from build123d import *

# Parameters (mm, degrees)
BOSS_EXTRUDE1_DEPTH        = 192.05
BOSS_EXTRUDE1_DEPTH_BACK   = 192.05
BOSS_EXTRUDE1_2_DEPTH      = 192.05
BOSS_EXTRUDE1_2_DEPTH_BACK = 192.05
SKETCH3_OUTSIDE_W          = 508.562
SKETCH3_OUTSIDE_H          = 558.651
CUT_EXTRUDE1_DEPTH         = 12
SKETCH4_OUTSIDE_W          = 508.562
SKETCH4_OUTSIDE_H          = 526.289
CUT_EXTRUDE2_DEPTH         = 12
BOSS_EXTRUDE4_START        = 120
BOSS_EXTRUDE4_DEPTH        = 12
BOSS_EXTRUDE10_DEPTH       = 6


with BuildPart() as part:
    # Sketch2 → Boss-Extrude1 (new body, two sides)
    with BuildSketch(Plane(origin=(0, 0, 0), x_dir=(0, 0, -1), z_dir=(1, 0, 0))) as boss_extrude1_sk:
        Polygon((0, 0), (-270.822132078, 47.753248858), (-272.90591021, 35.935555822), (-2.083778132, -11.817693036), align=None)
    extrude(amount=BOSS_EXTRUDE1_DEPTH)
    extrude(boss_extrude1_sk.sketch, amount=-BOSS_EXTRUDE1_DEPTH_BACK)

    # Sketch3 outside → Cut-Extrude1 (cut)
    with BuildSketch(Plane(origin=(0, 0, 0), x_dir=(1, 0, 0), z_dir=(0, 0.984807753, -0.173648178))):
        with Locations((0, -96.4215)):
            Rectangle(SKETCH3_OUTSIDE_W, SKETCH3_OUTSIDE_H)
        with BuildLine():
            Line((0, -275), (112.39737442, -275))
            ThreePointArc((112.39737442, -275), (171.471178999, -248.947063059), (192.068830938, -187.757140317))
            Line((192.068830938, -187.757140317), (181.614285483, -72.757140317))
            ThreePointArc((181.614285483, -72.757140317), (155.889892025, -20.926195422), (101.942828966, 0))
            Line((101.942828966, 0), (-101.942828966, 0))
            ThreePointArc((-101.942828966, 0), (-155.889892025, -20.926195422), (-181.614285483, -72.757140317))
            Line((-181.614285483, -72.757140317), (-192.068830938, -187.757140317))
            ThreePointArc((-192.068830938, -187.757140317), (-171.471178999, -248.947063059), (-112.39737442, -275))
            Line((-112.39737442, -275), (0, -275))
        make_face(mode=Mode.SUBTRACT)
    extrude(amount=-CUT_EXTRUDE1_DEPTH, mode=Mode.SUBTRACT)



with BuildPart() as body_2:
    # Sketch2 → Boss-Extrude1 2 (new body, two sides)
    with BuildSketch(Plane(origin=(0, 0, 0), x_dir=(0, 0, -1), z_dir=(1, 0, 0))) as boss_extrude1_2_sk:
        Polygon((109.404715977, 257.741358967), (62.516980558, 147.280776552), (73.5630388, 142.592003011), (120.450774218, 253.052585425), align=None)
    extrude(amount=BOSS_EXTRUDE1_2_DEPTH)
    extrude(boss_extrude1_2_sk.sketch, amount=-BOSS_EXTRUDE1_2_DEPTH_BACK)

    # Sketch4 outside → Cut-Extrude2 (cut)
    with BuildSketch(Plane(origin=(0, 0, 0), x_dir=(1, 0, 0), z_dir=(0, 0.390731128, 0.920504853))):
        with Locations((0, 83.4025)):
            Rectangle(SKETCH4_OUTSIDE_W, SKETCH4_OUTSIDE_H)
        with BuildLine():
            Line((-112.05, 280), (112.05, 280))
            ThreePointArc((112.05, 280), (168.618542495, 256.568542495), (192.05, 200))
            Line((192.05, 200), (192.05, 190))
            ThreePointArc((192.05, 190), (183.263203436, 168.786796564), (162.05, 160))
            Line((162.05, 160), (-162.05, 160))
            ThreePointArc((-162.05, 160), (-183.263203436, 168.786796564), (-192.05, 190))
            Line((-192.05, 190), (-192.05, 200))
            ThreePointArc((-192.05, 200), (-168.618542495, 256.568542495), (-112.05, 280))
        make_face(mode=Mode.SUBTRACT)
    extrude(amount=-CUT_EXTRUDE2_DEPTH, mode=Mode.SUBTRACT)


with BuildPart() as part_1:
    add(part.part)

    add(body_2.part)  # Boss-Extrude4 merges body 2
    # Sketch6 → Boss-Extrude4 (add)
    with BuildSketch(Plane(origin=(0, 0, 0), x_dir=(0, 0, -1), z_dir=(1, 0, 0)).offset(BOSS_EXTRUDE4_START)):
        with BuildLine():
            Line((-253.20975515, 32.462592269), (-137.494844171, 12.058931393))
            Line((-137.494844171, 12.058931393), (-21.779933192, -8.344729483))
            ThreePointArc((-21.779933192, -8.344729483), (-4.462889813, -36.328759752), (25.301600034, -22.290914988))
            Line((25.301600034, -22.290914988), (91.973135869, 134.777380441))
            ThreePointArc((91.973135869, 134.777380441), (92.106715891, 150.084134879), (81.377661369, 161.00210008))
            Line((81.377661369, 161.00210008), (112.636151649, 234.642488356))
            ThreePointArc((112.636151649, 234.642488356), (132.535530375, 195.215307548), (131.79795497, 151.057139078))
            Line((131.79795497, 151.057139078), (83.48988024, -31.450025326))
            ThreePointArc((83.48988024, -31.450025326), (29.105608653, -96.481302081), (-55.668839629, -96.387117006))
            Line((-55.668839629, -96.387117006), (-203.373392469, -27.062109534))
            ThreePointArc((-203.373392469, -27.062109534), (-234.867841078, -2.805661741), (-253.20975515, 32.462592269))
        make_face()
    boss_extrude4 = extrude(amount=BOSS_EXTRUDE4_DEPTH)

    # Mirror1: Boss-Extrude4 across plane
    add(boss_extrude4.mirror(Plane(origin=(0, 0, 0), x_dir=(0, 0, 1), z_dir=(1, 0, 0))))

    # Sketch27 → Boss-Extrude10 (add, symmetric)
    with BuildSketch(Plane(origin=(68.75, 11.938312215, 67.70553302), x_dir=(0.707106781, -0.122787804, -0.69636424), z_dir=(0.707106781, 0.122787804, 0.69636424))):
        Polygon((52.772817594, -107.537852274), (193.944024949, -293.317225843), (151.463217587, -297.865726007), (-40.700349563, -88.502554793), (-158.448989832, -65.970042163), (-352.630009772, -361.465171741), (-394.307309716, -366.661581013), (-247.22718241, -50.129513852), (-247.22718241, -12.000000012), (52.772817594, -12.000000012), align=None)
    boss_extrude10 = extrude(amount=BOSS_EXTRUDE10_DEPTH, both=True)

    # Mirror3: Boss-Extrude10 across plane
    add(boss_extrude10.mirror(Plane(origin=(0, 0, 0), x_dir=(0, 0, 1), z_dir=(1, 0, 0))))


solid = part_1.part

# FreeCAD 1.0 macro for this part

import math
import FreeCAD as App
import Part
import Sketcher

V = App.Vector
Q = App.Units.Quantity

doc = App.newDocument("Part")
body = doc.addObject("PartDesign::Body", "Body")

sketch1 = body.newObject("Sketcher::SketchObject", "Sketch")
sketch1.AttachmentSupport = (doc.getObject("YZ_Plane"), [""])
sketch1.MapMode = "FlatFace"
sketch1.addGeometry([
    Part.LineSegment(V(0, 0, 0), V(48, 271, 0)),
    Part.LineSegment(V(48, 271, 0), V(36, 273, 0)),
    Part.LineSegment(V(36, 273, 0), V(-12, 2, 0)),
    Part.LineSegment(V(-12, 2, 0), V(0, 0, 0)),
], False)
sketch1.addConstraint([
    Sketcher.Constraint("Coincident", 0, 2, 1, 1),
    Sketcher.Constraint("Coincident", 1, 2, 2, 1),
    Sketcher.Constraint("Coincident", 2, 2, 3, 1),
    Sketcher.Constraint("Coincident", 3, 2, 0, 1),
    Sketcher.Constraint("Coincident", 3, 2, -1, 1),
    Sketcher.Constraint("Perpendicular", 0, 1),
    Sketcher.Constraint("Perpendicular", 1, 2),
    Sketcher.Constraint("Perpendicular", 2, 3),
    Sketcher.Constraint("Angle", 0, Q("80 deg")),
    Sketcher.Constraint("Distance", 0, Q("275 mm")),
    Sketcher.Constraint("Distance", 1, Q("12 mm")),
])
pad1 = body.newObject("PartDesign::Pad", "Pad")
pad1.Profile = sketch1
pad1.Type = "TwoLengths"
pad1.Length = 192.05
pad1.Length2 = 192.05

sketch2 = body.newObject("Sketcher::SketchObject", "Sketch001")
sketch2.Placement = App.Placement(V(0, 0, 0), App.Rotation(V(1, 0, 0), V(0, -0.173648178, -0.984807753), V(0, 0.984807753, -0.173648178), "ZXY"))
sketch2.addGeometry([
    Part.LineSegment(V(-254, 183, 0), V(-254, -376, 0)),
    Part.LineSegment(V(-254, -376, 0), V(254, -376, 0)),
    Part.LineSegment(V(254, -376, 0), V(254, 183, 0)),
    Part.LineSegment(V(254, 183, 0), V(-254, 183, 0)),
    Part.ArcOfCircle(Part.Circle(V(112, -195, 0), V(0, 0, 1), 80), math.radians(-90), math.radians(5)),
    Part.LineSegment(V(112, -275, 0), V(-112, -275, 0)),
    Part.ArcOfCircle(Part.Circle(V(-112, -195, 0), V(0, 0, 1), 80), math.radians(175), math.radians(270)),
    Part.LineSegment(V(-192, -188, 0), V(-182, -73, 0)),
    Part.ArcOfCircle(Part.Circle(V(-102, -80, 0), V(0, 0, 1), 80), math.radians(90), math.radians(175)),
    Part.LineSegment(V(-102, 0, 0), V(102, 0, 0)),
    Part.ArcOfCircle(Part.Circle(V(102, -80, 0), V(0, 0, 1), 80), math.radians(5), math.radians(90)),
    Part.LineSegment(V(182, -73, 0), V(192, -188, 0)),
], False)
sketch2.addConstraint([
    Sketcher.Constraint("Coincident", 0, 2, 1, 1),
    Sketcher.Constraint("Coincident", 1, 2, 2, 1),
    Sketcher.Constraint("Coincident", 2, 2, 3, 1),
    Sketcher.Constraint("Coincident", 3, 2, 0, 1),
    Sketcher.Constraint("Tangent", 4, 1, 5, 1),
    Sketcher.Constraint("Tangent", 5, 2, 6, 2),
    Sketcher.Constraint("Tangent", 6, 1, 7, 1),
    Sketcher.Constraint("Tangent", 7, 2, 8, 2),
    Sketcher.Constraint("Tangent", 8, 1, 9, 1),
    Sketcher.Constraint("Tangent", 9, 2, 10, 2),
    Sketcher.Constraint("Tangent", 10, 1, 11, 1),
    Sketcher.Constraint("Tangent", 11, 2, 4, 2),
    Sketcher.Constraint("Vertical", 0),
    Sketcher.Constraint("Horizontal", 1),
    Sketcher.Constraint("Vertical", 2),
    Sketcher.Constraint("Horizontal", 3),
    Sketcher.Constraint("Horizontal", 5),
    Sketcher.Constraint("Horizontal", 9),
    Sketcher.Constraint("Equal", 4, 6),
    Sketcher.Constraint("Equal", 6, 8),
    Sketcher.Constraint("Equal", 8, 10),
    Sketcher.Constraint("Symmetric", 8, 1, 9, 2, -1, 1),
    Sketcher.Constraint("Horizontal", 7, 2, 10, 1),
    Sketcher.Constraint("Radius", 4, Q("80 mm")),
    Sketcher.Constraint("DistanceY", 4, 3, -1, 1, Q("195 mm")),
    Sketcher.Constraint("DistanceX", 1, 1, 1, 2, Q("508.562 mm")),
    Sketcher.Constraint("DistanceY", 0, 2, 0, 1, Q("558.651 mm")),
    Sketcher.Constraint("DistanceX", 0, 2, -1, 1, Q("254.281 mm")),
    Sketcher.Constraint("DistanceY", 0, 2, -1, 1, Q("375.747 mm")),
    Sketcher.Constraint("DistanceX", 6, 1, 8, 3, Q("90.126002 mm")),
    Sketcher.Constraint("DistanceX", 5, 2, 5, 1, Q("224.794749 mm")),
])
pocket1 = body.newObject("PartDesign::Pocket", "Pocket")
pocket1.Profile = sketch2
pocket1.Length = 12
body2 = doc.addObject("PartDesign::Body", "Body001")

sketch3 = body2.newObject("Sketcher::SketchObject", "Sketch002")
sketch3.AttachmentSupport = (doc.getObject("YZ_Plane001"), [""])
sketch3.MapMode = "FlatFace"
sketch3.addGeometry([
    Part.LineSegment(V(258, -109, 0), V(147, -63, 0)),
    Part.LineSegment(V(147, -63, 0), V(143, -74, 0)),
    Part.LineSegment(V(143, -74, 0), V(253, -120, 0)),
    Part.LineSegment(V(253, -120, 0), V(258, -109, 0)),
], False)
sketch3.addConstraint([
    Sketcher.Constraint("Coincident", 0, 2, 1, 1),
    Sketcher.Constraint("Coincident", 1, 2, 2, 1),
    Sketcher.Constraint("Coincident", 2, 2, 3, 1),
    Sketcher.Constraint("Coincident", 3, 2, 0, 1),
    Sketcher.Constraint("Perpendicular", 0, 1),
    Sketcher.Constraint("Perpendicular", 1, 2),
    Sketcher.Constraint("Perpendicular", 2, 3),
    Sketcher.Constraint("Angle", 0, Q("157 deg")),
    Sketcher.Constraint("Distance", 0, Q("120 mm")),
    Sketcher.Constraint("Distance", 1, Q("12 mm")),
    Sketcher.Constraint("DistanceY", 0, 2, -1, 1, Q("62.516981 mm")),
    Sketcher.Constraint("DistanceX", -1, 1, 3, 2, Q("257.741359 mm")),
])
pad2 = body2.newObject("PartDesign::Pad", "Pad001")
pad2.Profile = sketch3
pad2.Type = "TwoLengths"
pad2.Length = 192.05
pad2.Length2 = 192.05

sketch4 = body2.newObject("Sketcher::SketchObject", "Sketch003")
sketch4.Placement = App.Placement(V(0, 0, 0), App.Rotation(V(1, 0, 0), V(0, 0.920504854, -0.390731128), V(0, 0.390731128, 0.920504854), "ZXY"))
sketch4.addGeometry([
    Part.LineSegment(V(-254, 347, 0), V(-254, -180, 0)),
    Part.LineSegment(V(-254, -180, 0), V(254, -180, 0)),
    Part.LineSegment(V(254, -180, 0), V(254, 347, 0)),
    Part.LineSegment(V(254, 347, 0), V(-254, 347, 0)),
    Part.ArcOfCircle(Part.Circle(V(-112, 200, 0), V(0, 0, 1), 80), math.radians(90), math.radians(180)),
    Part.LineSegment(V(-112, 280, 0), V(112, 280, 0)),
    Part.ArcOfCircle(Part.Circle(V(112, 200, 0), V(0, 0, 1), 80), math.radians(0), math.radians(90)),
    Part.LineSegment(V(192, 200, 0), V(192, 190, 0)),
    Part.ArcOfCircle(Part.Circle(V(162, 190, 0), V(0, 0, 1), 30), math.radians(-90), math.radians(0)),
    Part.LineSegment(V(162, 160, 0), V(-162, 160, 0)),
    Part.ArcOfCircle(Part.Circle(V(-162, 190, 0), V(0, 0, 1), 30), math.radians(180), math.radians(270)),
    Part.LineSegment(V(-192, 190, 0), V(-192, 200, 0)),
], False)
sketch4.addConstraint([
    Sketcher.Constraint("Coincident", 0, 2, 1, 1),
    Sketcher.Constraint("Coincident", 1, 2, 2, 1),
    Sketcher.Constraint("Coincident", 2, 2, 3, 1),
    Sketcher.Constraint("Coincident", 3, 2, 0, 1),
    Sketcher.Constraint("Tangent", 4, 1, 5, 1),
    Sketcher.Constraint("Tangent", 5, 2, 6, 2),
    Sketcher.Constraint("Tangent", 6, 1, 7, 1),
    Sketcher.Constraint("Tangent", 7, 2, 8, 2),
    Sketcher.Constraint("Tangent", 8, 1, 9, 1),
    Sketcher.Constraint("Tangent", 9, 2, 10, 2),
    Sketcher.Constraint("Tangent", 10, 1, 11, 1),
    Sketcher.Constraint("Tangent", 11, 2, 4, 2),
    Sketcher.Constraint("Vertical", 0),
    Sketcher.Constraint("Horizontal", 1),
    Sketcher.Constraint("Vertical", 2),
    Sketcher.Constraint("Horizontal", 3),
    Sketcher.Constraint("Horizontal", 5),
    Sketcher.Constraint("Vertical", 7),
    Sketcher.Constraint("Horizontal", 9),
    Sketcher.Constraint("Vertical", 11),
    Sketcher.Constraint("Equal", 4, 6),
    Sketcher.Constraint("Equal", 8, 10),
    Sketcher.Constraint("Radius", 4, Q("80 mm")),
    Sketcher.Constraint("Radius", 8, Q("30 mm")),
    Sketcher.Constraint("DistanceY", 7, 2, 7, 1, Q("10 mm")),
    Sketcher.Constraint("DistanceX", 5, 1, 5, 2, Q("224.1 mm")),
    Sketcher.Constraint("DistanceY", -1, 1, 4, 3, Q("200 mm")),
    Sketcher.Constraint("DistanceX", 1, 1, 1, 2, Q("508.562 mm")),
    Sketcher.Constraint("DistanceY", 0, 2, 0, 1, Q("526.289 mm")),
    Sketcher.Constraint("DistanceX", 4, 3, -1, 1, Q("112.05 mm")),
    Sketcher.Constraint("DistanceX", 0, 2, -1, 1, Q("254.281 mm")),
    Sketcher.Constraint("DistanceY", 0, 2, -1, 1, Q("179.742 mm")),
])
pocket2 = body2.newObject("PartDesign::Pocket", "Pocket001")
pocket2.Profile = sketch4
pocket2.Length = 12
body.AllowCompound = True
doc.recompute()

boolean = body.newObject("PartDesign::Boolean", "Boolean")
boolean.Type = "Fuse"
boolean.addObjects([body2])

sketch5 = body.newObject("Sketcher::SketchObject", "Sketch004")
sketch5.AttachmentSupport = (doc.getObject("YZ_Plane"), [""])
sketch5.MapMode = "FlatFace"
sketch5.AttachmentOffset = App.Placement(V(0, 0, 120), App.Rotation())
sketch5.addGeometry([
    Part.LineSegment(V(-8, 22, 0), V(32, 253, 0)),
    Part.ArcOfCircle(Part.Circle(V(56, 164, 0), V(0, 0, 1), 92), math.radians(105), math.radians(155)),
    Part.LineSegment(V(-27, 203, 0), V(-96, 56, 0)),
    Part.ArcOfCircle(Part.Circle(V(-6, 13, 0), V(0, 0, 1), 100), math.radians(155), math.radians(255)),
    Part.LineSegment(V(-31, -83, 0), V(151, -132, 0)),
    Part.ArcOfCircle(Part.Circle(V(175, -43, 0), V(0, 0, 1), 92), math.radians(-105), math.radians(-49)),
    Part.LineSegment(V(235, -113, 0), V(161, -81, 0)),
    Part.ArcOfCircle(Part.Circle(V(143, -74, 0), V(0, 0, 1), 20), math.radians(-113), math.radians(-23)),
    Part.LineSegment(V(135, -92, 0), V(-22, -25, 0)),
    Part.ArcOfCircle(Part.Circle(V(-13, -3, 0), V(0, 0, 1), 25), math.radians(80), math.radians(247)),
], False)
sketch5.addConstraint([
    Sketcher.Constraint("Coincident", 0, 2, 1, 1),
    Sketcher.Constraint("Tangent", 1, 2, 2, 1),
    Sketcher.Constraint("Tangent", 2, 2, 3, 1),
    Sketcher.Constraint("Tangent", 3, 2, 4, 1),
    Sketcher.Constraint("Tangent", 4, 2, 5, 1),
    Sketcher.Constraint("Coincident", 5, 2, 6, 1),
    Sketcher.Constraint("Coincident", 6, 2, 7, 2),
    Sketcher.Constraint("Tangent", 7, 1, 8, 1),
    Sketcher.Constraint("Tangent", 8, 2, 9, 2),
    Sketcher.Constraint("Coincident", 9, 1, 0, 1),
    Sketcher.Constraint("Equal", 1, 5),
    Sketcher.Constraint("Parallel", 6, 8),
    Sketcher.Constraint("Radius", 3, Q("100 mm")),
    Sketcher.Constraint("Radius", 7, Q("20 mm")),
    Sketcher.Constraint("Angle", 0, Q("80 deg")),
    Sketcher.Constraint("Angle", 6, Q("157 deg")),
    Sketcher.Constraint("Distance", 0, Q("235 mm")),
    Sketcher.Constraint("Distance", 6, Q("80 mm")),
    Sketcher.Constraint("Radius", 1, Q("92.124532 mm")),
    Sketcher.Constraint("Radius", 9, Q("24.710661 mm")),
    Sketcher.Constraint("DistanceX", -1, 1, 6, 2, Q("161.0021 mm")),
    Sketcher.Constraint("DistanceY", 8, 2, -1, 1, Q("25.3016 mm")),
    Sketcher.Constraint("DistanceX", 1, 2, 0, 2, Q("59.524702 mm")),
    Sketcher.Constraint("Distance", 2, Q("163.164309 mm")),
    Sketcher.Constraint("DistanceX", -1, 1, 1, 3, Q("56.333658 mm")),
    Sketcher.Constraint("DistanceY", -1, 1, 1, 3, Q("164.231659 mm")),
    Sketcher.Constraint("DistanceX", 3, 3, -1, 1, Q("5.862079 mm")),
    Sketcher.Constraint("DistanceY", 5, 3, -1, 1, Q("42.740369 mm")),
    Sketcher.Constraint("DistanceY", 7, 3, -1, 1, Q("73.563039 mm")),
])
pad3 = body.newObject("PartDesign::Pad", "Pad002")
pad3.Profile = sketch5
pad3.Length = 12
doc.recompute()

mirrored = body.newObject("PartDesign::Mirrored", "Mirrored")
mirrored.Originals = [pad3]
mirrored.MirrorPlane = (doc.getObject("YZ_Plane"), [""])
body.Tip = mirrored

sketch6 = body.newObject("Sketcher::SketchObject", "Sketch005")
sketch6.Placement = App.Placement(V(68.75, 11.938312, 67.705533), App.Rotation(V(0.707106781, -0.122787804, -0.69636424), V(0, 0.984807752, -0.173648178), V(0.707106781, 0.122787804, 0.69636424), "ZXY"))
sketch6.addGeometry([
    Part.LineSegment(V(194, -293, 0), V(53, -108, 0)),
    Part.LineSegment(V(53, -108, 0), V(53, -12, 0)),
    Part.LineSegment(V(53, -12, 0), V(-247, -12, 0)),
    Part.LineSegment(V(-247, -12, 0), V(-247, -50, 0)),
    Part.LineSegment(V(-247, -50, 0), V(-394, -367, 0)),
    Part.LineSegment(V(-394, -367, 0), V(-353, -361, 0)),
    Part.LineSegment(V(-353, -361, 0), V(-158, -66, 0)),
    Part.LineSegment(V(-158, -66, 0), V(-41, -89, 0)),
    Part.LineSegment(V(-41, -89, 0), V(151, -298, 0)),
    Part.LineSegment(V(151, -298, 0), V(194, -293, 0)),
], False)
sketch6.addConstraint([
    Sketcher.Constraint("Coincident", 0, 2, 1, 1),
    Sketcher.Constraint("Coincident", 1, 2, 2, 1),
    Sketcher.Constraint("Coincident", 2, 2, 3, 1),
    Sketcher.Constraint("Coincident", 3, 2, 4, 1),
    Sketcher.Constraint("Coincident", 4, 2, 5, 1),
    Sketcher.Constraint("Coincident", 5, 2, 6, 1),
    Sketcher.Constraint("Coincident", 6, 2, 7, 1),
    Sketcher.Constraint("Coincident", 7, 2, 8, 1),
    Sketcher.Constraint("Coincident", 8, 2, 9, 1),
    Sketcher.Constraint("Coincident", 9, 2, 0, 1),
    Sketcher.Constraint("Vertical", 1),
    Sketcher.Constraint("Horizontal", 2),
    Sketcher.Constraint("Vertical", 3),
    Sketcher.Constraint("DistanceX", 2, 2, 2, 1, Q("300 mm")),
    Sketcher.Constraint("Distance", 5, Q("42 mm")),
    Sketcher.Constraint("DistanceY", 1, 2, -1, 1, Q("12 mm")),
    Sketcher.Constraint("DistanceX", 4, 2, 5, 2, Q("41.6773 mm")),
    Sketcher.Constraint("DistanceX", 0, 2, 8, 2, Q("98.6904 mm")),
    Sketcher.Constraint("DistanceY", 8, 2, 9, 2, Q("4.5485 mm")),
    Sketcher.Constraint("Distance", 0, Q("233.330849 mm")),
    Sketcher.Constraint("Distance", 6, Q("353.586821 mm")),
    Sketcher.Constraint("Distance", 7, Q("119.88518 mm")),
    Sketcher.Constraint("Distance", 8, Q("284.182642 mm")),
    Sketcher.Constraint("Distance", 9, Q("42.723622 mm")),
    Sketcher.Constraint("DistanceY", 1, 1, 1, 2, Q("95.537852 mm")),
    Sketcher.Constraint("DistanceY", 3, 2, 3, 1, Q("38.129514 mm")),
    Sketcher.Constraint("DistanceX", 4, 2, -1, 1, Q("394.307309 mm")),
    Sketcher.Constraint("DistanceY", 4, 2, -1, 1, Q("366.66158 mm")),
    Sketcher.Constraint("DistanceX", 6, 2, -1, 1, Q("158.44899 mm")),
    Sketcher.Constraint("DistanceX", 7, 2, -1, 1, Q("40.70035 mm")),
])
pad4 = body.newObject("PartDesign::Pad", "Pad003")
pad4.Profile = sketch6
pad4.Length = 12
pad4.Midplane = True
doc.recompute()

mirrored2 = body.newObject("PartDesign::Mirrored", "Mirrored001")
mirrored2.Originals = [pad4]
mirrored2.MirrorPlane = (doc.getObject("YZ_Plane"), [""])
body.Tip = mirrored2

doc.recompute()
